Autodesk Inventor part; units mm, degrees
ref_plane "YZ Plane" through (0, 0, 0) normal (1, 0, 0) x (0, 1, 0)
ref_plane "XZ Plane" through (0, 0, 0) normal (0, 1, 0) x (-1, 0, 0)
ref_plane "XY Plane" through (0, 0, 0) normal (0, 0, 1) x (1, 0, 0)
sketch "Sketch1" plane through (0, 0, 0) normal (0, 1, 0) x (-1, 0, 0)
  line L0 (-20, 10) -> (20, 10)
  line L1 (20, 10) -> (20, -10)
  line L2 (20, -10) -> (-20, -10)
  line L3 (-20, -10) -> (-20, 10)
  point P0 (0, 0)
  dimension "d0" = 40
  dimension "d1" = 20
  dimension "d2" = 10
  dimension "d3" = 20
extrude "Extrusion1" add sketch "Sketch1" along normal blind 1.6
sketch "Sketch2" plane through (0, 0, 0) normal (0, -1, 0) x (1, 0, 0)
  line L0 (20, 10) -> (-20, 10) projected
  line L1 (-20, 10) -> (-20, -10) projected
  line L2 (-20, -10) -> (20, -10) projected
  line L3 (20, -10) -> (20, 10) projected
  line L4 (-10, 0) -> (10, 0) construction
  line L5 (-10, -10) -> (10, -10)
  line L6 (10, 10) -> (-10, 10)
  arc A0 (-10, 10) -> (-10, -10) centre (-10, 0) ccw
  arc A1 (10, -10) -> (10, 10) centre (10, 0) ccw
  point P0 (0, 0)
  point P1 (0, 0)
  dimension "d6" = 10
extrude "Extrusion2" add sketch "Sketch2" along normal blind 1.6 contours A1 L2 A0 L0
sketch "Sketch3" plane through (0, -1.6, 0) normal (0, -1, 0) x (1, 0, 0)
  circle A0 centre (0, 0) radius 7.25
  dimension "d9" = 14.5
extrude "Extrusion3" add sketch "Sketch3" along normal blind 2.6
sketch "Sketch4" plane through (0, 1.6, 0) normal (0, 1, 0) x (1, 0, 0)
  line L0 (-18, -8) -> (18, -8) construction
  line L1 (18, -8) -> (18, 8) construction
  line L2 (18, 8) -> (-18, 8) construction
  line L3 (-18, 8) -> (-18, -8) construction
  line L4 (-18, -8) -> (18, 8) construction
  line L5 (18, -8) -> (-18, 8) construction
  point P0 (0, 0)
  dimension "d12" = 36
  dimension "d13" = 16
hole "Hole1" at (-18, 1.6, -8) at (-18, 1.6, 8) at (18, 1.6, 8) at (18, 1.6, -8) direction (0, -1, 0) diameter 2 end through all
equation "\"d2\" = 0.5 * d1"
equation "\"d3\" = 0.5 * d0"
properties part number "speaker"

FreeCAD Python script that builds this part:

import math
import FreeCAD as App
import Part
import Sketcher
from FreeCAD import Vector
Q = App.Units.Quantity


def add_polygon(sketch, points):
    """Adds a closed chain of lines whose ends are joined by coincident constraints."""
    first, n = sketch.GeometryCount, len(points)
    for a, b in zip(points, points[1:] + points[:1]):
        sketch.addGeometry(Part.LineSegment(App.Vector(*a, 0), App.Vector(*b, 0)), False)
    for i in range(n):
        sketch.addConstraint(Sketcher.Constraint("Coincident", first + i, 2, first + (i + 1) % n, 1))

doc = App.newDocument("Part")
body = doc.addObject("PartDesign::Body", "Body")

# Sketch on XZ plane
sketch1 = body.newObject("Sketcher::SketchObject", "Sketch")
sketch1.AttachmentSupport = (doc.getObject("XZ_Plane"), [""])
sketch1.MapMode = "FlatFace"
add_polygon(sketch1, [(-20, 10), (20, 10), (20, -10), (-20, -10)])  # lines 0-3
sketch1.addConstraint([
    Sketcher.Constraint("Horizontal", 0),
    Sketcher.Constraint("Vertical", 1),
    Sketcher.Constraint("Horizontal", 2),
    Sketcher.Constraint("Vertical", 3),
    Sketcher.Constraint("Symmetric", 0, 2, 2, 2, -1, 1),
    Sketcher.Constraint("DistanceX", 0, 1, 0, 2, Q("40 mm")),
    Sketcher.Constraint("DistanceY", 1, 2, 1, 1, Q("20 mm")),
])
pad1 = body.newObject("PartDesign::Pad", "Pad")
pad1.Profile = sketch1
pad1.Length = 1.6
pad1.Reversed = True

# Sketch on XZ plane
sketch2 = body.newObject("Sketcher::SketchObject", "Sketch001")
sketch2.AttachmentSupport = (doc.getObject("XZ_Plane"), [""])
sketch2.MapMode = "FlatFace"
sketch2.addGeometry([
    Part.ArcOfCircle(Part.Circle(Vector(10, 0, 0), Vector(0, 0, 1), 10), math.radians(-90), math.radians(90)),
    Part.LineSegment(Vector(10, 10, 0), Vector(-10, 10, 0)),
    Part.ArcOfCircle(Part.Circle(Vector(-10, 0, 0), Vector(0, 0, 1), 10), math.radians(90), math.radians(270)),
    Part.LineSegment(Vector(-10, -10, 0), Vector(10, -10, 0)),
], False)
sketch2.addConstraint([
    Sketcher.Constraint("Tangent", 0, 2, 1, 1),
    Sketcher.Constraint("Tangent", 1, 2, 2, 1),
    Sketcher.Constraint("Tangent", 2, 2, 3, 1),
    Sketcher.Constraint("Tangent", 3, 2, 0, 1),
    Sketcher.Constraint("Horizontal", 1),
    Sketcher.Constraint("Horizontal", 3),
    Sketcher.Constraint("Symmetric", 0, 3, 2, 3, -1, 1),
    Sketcher.Constraint("Radius", 0, Q("10 mm")),
    Sketcher.Constraint("DistanceX", -1, 1, 0, 3, Q("10 mm")),
])
pad2 = body.newObject("PartDesign::Pad", "Pad001")
pad2.Profile = sketch2
pad2.Length = 1.6

# Sketch on XZ plane
sketch3 = body.newObject("Sketcher::SketchObject", "Sketch002")
sketch3.AttachmentSupport = (doc.getObject("XZ_Plane"), [""])
sketch3.MapMode = "FlatFace"
sketch3.AttachmentOffset = App.Placement(Vector(0, 0, 1.6), App.Rotation())
sketch3.addGeometry(Part.Circle(Vector(0, 0, 0), Vector(0, 0, 1), 7.25), False)
sketch3.addConstraint([
    Sketcher.Constraint("Coincident", 0, 3, -1, 1),
    Sketcher.Constraint("Diameter", 0, Q("14.5 mm")),
])
pad3 = body.newObject("PartDesign::Pad", "Pad002")
pad3.Profile = sketch3
pad3.Length = 2.6

# Sketch on XZ plane
sketch4 = body.newObject("Sketcher::SketchObject", "Sketch003")
sketch4.AttachmentSupport = (doc.getObject("XZ_Plane"), [""])
sketch4.MapMode = "FlatFace"
sketch4.AttachmentOffset = App.Placement(Vector(0, 0, -1.6), App.Rotation())
sketch4.addGeometry([
    Part.Circle(Vector(-18, -8, 0), Vector(0, 0, 1), 1),
    Part.Circle(Vector(-18, 8, 0), Vector(0, 0, 1), 1),
    Part.Circle(Vector(18, 8, 0), Vector(0, 0, 1), 1),
    Part.Circle(Vector(18, -8, 0), Vector(0, 0, 1), 1),
], False)
sketch4.addConstraint([
    Sketcher.Constraint("Equal", 0, 1),
    Sketcher.Constraint("Equal", 1, 2),
    Sketcher.Constraint("Equal", 2, 3),
    Sketcher.Constraint("Symmetric", 0, 3, 2, 3, -1, 1),
    Sketcher.Constraint("Symmetric", 1, 3, 3, 3, -1, 1),
    Sketcher.Constraint("Symmetric", 1, 3, 2, 3, -2),
    Sketcher.Constraint("Diameter", 0, Q("2 mm")),
    Sketcher.Constraint("DistanceX", 0, 3, -1, 1, Q("18 mm")),
    Sketcher.Constraint("DistanceY", 0, 3, -1, 1, Q("8 mm")),
])
doc.recompute()
hole = body.newObject("PartDesign::Hole", "Hole")
hole.Profile = sketch4
hole.ThreadType = "None"
hole.Diameter = 2
hole.DepthType = "ThroughAll"
hole.Reversed = True

doc.recompute()
